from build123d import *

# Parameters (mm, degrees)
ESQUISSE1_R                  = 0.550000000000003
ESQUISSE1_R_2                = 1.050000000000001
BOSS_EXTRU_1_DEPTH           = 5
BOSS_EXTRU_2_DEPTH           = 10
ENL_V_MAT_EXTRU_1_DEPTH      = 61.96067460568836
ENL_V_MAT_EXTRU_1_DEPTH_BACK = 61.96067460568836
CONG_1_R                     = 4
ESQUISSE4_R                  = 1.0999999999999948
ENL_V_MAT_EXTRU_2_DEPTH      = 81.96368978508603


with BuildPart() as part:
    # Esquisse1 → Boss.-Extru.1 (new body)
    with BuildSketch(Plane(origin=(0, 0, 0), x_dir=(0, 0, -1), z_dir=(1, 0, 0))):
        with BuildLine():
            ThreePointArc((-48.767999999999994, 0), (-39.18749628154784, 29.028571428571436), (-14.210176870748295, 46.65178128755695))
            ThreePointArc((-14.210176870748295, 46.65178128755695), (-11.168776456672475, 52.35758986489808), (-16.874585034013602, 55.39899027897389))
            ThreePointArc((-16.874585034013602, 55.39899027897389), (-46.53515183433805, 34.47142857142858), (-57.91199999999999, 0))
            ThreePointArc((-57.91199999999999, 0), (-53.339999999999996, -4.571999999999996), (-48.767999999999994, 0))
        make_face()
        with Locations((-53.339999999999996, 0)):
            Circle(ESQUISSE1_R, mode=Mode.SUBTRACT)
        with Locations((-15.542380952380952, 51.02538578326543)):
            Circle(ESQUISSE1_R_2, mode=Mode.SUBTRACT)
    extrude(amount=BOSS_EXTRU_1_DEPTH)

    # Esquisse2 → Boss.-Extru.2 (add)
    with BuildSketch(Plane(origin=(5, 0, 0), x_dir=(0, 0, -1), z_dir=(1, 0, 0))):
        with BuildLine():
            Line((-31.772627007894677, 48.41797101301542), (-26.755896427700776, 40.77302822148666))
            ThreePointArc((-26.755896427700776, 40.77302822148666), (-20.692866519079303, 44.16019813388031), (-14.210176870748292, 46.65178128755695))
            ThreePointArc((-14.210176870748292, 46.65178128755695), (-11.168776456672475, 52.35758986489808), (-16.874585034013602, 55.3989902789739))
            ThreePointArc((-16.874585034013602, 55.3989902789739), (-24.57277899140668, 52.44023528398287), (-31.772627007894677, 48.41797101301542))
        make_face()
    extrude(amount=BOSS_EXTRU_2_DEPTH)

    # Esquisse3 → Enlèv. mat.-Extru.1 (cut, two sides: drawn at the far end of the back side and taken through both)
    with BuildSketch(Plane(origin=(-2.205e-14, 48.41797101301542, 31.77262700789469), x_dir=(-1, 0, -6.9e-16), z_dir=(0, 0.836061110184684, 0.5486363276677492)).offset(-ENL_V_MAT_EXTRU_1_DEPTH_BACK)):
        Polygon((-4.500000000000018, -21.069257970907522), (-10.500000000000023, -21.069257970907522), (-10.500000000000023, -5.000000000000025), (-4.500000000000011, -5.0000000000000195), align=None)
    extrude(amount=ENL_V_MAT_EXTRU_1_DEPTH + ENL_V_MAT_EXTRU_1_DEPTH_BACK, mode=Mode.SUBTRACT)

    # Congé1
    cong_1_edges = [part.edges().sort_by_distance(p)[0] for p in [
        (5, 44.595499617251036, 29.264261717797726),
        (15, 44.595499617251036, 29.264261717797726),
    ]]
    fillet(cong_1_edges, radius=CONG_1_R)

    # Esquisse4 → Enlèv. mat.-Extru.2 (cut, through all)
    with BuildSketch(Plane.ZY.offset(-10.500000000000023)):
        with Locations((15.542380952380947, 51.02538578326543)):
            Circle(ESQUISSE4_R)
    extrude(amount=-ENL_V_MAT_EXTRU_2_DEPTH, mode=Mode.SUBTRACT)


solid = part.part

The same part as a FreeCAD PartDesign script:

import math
import FreeCAD as App
import Part
import Sketcher
from FreeCAD import Vector
Q = App.Units.Quantity


def edges_at(feature, points):
    """Names of the edges that pass closest to the given points."""
    edges = feature.Shape.Edges
    near = lambda p: min(range(len(edges)), key=lambda i: edges[i].distToShape(Part.Vertex(*p))[0])
    return sorted({f"Edge{near(p) + 1}" for p in points})

doc = App.newDocument("Part")
params = doc.addObject("Spreadsheet::Sheet", "Params")
for row, (alias, value) in enumerate([
    ("sketch1_diameter", "1.1 mm"),
    ("sketch1_diameter2", "2.1 mm"),
    ("pad1_length", "5 mm"),
    ("pad2_length", "10 mm"),
    ("sketch3_width", "6 mm"),
    ("fillet_radius", "4 mm"),
    ("sketch4_diameter", "2.2 mm"),
], start=1):
    params.set(f"A{row}", alias)
    params.set(f"B{row}", "=" + value)
    params.setAlias(f"B{row}", alias)

body = doc.addObject("PartDesign::Body", "Body")

sketch1 = body.newObject("Sketcher::SketchObject", "Sketch")
sketch1.AttachmentSupport = (doc.getObject("YZ_Plane"), [""])
sketch1.MapMode = "FlatFace"
sketch1.addGeometry(Part.ArcOfCircle(Part.Circle(Vector(0, 0, 0), Vector(0, 0, 1), 48.8), math.radians(17), math.radians(90)), False)
sketch1.addGeometry(Part.ArcOfCircle(Part.Circle(Vector(51, 15.5, 0), Vector(0, 0, 1), 4.6), math.radians(-163), math.radians(17)), False)
sketch1.addGeometry(Part.ArcOfCircle(Part.Circle(Vector(0, 0, 0), Vector(0, 0, 1), 57.9), math.radians(17), math.radians(90)), False)
sketch1.addGeometry(Part.ArcOfCircle(Part.Circle(Vector(0, 53.3, 0), Vector(0, 0, 1), 4.6), math.radians(90), math.radians(270)), False)
sketch1.addGeometry(Part.Circle(Vector(0, 53.3, 0), Vector(0, 0, 1), 0.6), False)
sketch1.addGeometry(Part.Circle(Vector(51, 15.5, 0), Vector(0, 0, 1), 1.1), False)
sketch1.addConstraint(Sketcher.Constraint("Tangent", 0, 1, 1, 1))
sketch1.addConstraint(Sketcher.Constraint("Tangent", 1, 2, 2, 1))
sketch1.addConstraint(Sketcher.Constraint("Tangent", 2, 2, 3, 1))
sketch1.addConstraint(Sketcher.Constraint("Tangent", 3, 2, 0, 2))
sketch1.addConstraint(Sketcher.Constraint("Coincident", 0, 3, -1, 1))
sketch1.addConstraint(Sketcher.Constraint("Coincident", 2, 3, -1, 1))
sketch1.addConstraint(Sketcher.Constraint("Coincident", 4, 3, 3, 3))
sketch1.addConstraint(Sketcher.Constraint("Coincident", 5, 3, 1, 3))
sketch1.addConstraint(Sketcher.Constraint("PointOnObject", 3, 3, -2))
sketch1.addConstraint(Sketcher.Constraint("Diameter", 4, Q("1.1 mm")))
sketch1.addConstraint(Sketcher.Constraint("Diameter", 5, Q("2.1 mm")))
sketch1.addConstraint(Sketcher.Constraint("Radius", 0, Q("48.768 mm")))
sketch1.addConstraint(Sketcher.Constraint("Radius", 1, Q("4.572 mm")))
sketch1.addConstraint(Sketcher.Constraint("DistanceY", -1, 1, 1, 3, Q("15.542381 mm")))
sketch1.setExpression("Constraints[9]", "Params.sketch1_diameter")
sketch1.setExpression("Constraints[10]", "Params.sketch1_diameter2")
pad1 = body.newObject("PartDesign::Pad", "Pad")
pad1.Profile = sketch1
pad1.setExpression("Length", "Params.pad1_length")

sketch2 = body.newObject("Sketcher::SketchObject", "Sketch001")
sketch2.AttachmentSupport = (doc.getObject("YZ_Plane"), [""])
sketch2.MapMode = "FlatFace"
sketch2.AttachmentOffset = App.Placement(Vector(0, 0, 5), App.Rotation())
sketch2.addGeometry(Part.LineSegment(Vector(48.4, 31.8, 0), Vector(40.8, 26.8, 0)), False)
sketch2.addGeometry(Part.ArcOfCircle(Part.Circle(Vector(0, 0, 0), Vector(0, 0, 1), 48.8), math.radians(16.94), math.radians(33.27)), False)
sketch2.addGeometry(Part.ArcOfCircle(Part.Circle(Vector(51, 15.5, 0), Vector(0, 0, 1), 4.6), math.radians(-163), math.radians(17)), False)
sketch2.addGeometry(Part.ArcOfCircle(Part.Circle(Vector(0, 0, 0), Vector(0, 0, 1), 57.9), math.radians(16.94), math.radians(33.27)), False)
sketch2.addConstraint(Sketcher.Constraint("Coincident", 0, 2, 1, 2))
sketch2.addConstraint(Sketcher.Constraint("Tangent", 1, 1, 2, 1))
sketch2.addConstraint(Sketcher.Constraint("Tangent", 2, 2, 3, 1))
sketch2.addConstraint(Sketcher.Constraint("Coincident", 3, 2, 0, 1))
sketch2.addConstraint(Sketcher.Constraint("Coincident", 1, 3, -1, 1))
sketch2.addConstraint(Sketcher.Constraint("Coincident", 3, 3, -1, 1))
sketch2.addConstraint(Sketcher.Constraint("Radius", 1, Q("48.768 mm")))
sketch2.addConstraint(Sketcher.Constraint("Radius", 2, Q("4.572 mm")))
sketch2.addConstraint(Sketcher.Constraint("DistanceY", -1, 1, 2, 3, Q("15.542381 mm")))
sketch2.addConstraint(Sketcher.Constraint("DistanceX", -1, 1, 0, 2, Q("40.773028 mm")))
sketch2.addConstraint(Sketcher.Constraint("DistanceX", -1, 1, 3, 2, Q("48.417971 mm")))
pad2 = body.newObject("PartDesign::Pad", "Pad001")
pad2.Profile = sketch2
pad2.setExpression("Length", "Params.pad2_length")

sketch3 = body.newObject("Sketcher::SketchObject", "Sketch002")
sketch3.Placement = App.Placement(Vector(0, 48.417971, 31.772627), App.Rotation(Vector(-1, 0, 0), Vector(0, -0.548636328, 0.83606111), Vector(0, 0.83606111, 0.548636328), "ZXY"))
sketch3.addGeometry(Part.LineSegment(Vector(-10, -21, 0), Vector(-4, -21, 0)), False)
sketch3.addGeometry(Part.LineSegment(Vector(-4, -21, 0), Vector(-4, -5, 0)), False)
sketch3.addGeometry(Part.LineSegment(Vector(-4, -5, 0), Vector(-10, -5, 0)), False)
sketch3.addGeometry(Part.LineSegment(Vector(-10, -5, 0), Vector(-10, -21, 0)), False)
sketch3.addConstraint(Sketcher.Constraint("Coincident", 0, 2, 1, 1))
sketch3.addConstraint(Sketcher.Constraint("Coincident", 1, 2, 2, 1))
sketch3.addConstraint(Sketcher.Constraint("Coincident", 2, 2, 3, 1))
sketch3.addConstraint(Sketcher.Constraint("Coincident", 3, 2, 0, 1))
sketch3.addConstraint(Sketcher.Constraint("Horizontal", 0))
sketch3.addConstraint(Sketcher.Constraint("Vertical", 1))
sketch3.addConstraint(Sketcher.Constraint("Horizontal", 2))
sketch3.addConstraint(Sketcher.Constraint("Vertical", 3))
sketch3.addConstraint(Sketcher.Constraint("DistanceX", 0, 1, 0, 2, Q("6 mm")))
sketch3.addConstraint(Sketcher.Constraint("DistanceY", 1, 2, -1, 1, Q("5 mm")))
sketch3.addConstraint(Sketcher.Constraint("DistanceX", 0, 2, -1, 1, Q("4.5 mm")))
sketch3.addConstraint(Sketcher.Constraint("DistanceY", 1, 1, 1, 2, Q("16.069258 mm")))
sketch3.setExpression("Constraints[8]", "Params.sketch3_width")
pocket1 = body.newObject("PartDesign::Pocket", "Pocket")
pocket1.Profile = sketch3
pocket1.Type = "ThroughAll"
pocket1.Midplane = True
doc.recompute()

fillet = body.newObject("PartDesign::Fillet", "Fillet")
fillet.Base = (pocket1, edges_at(pocket1, [(5, 44.595, 29.264), (15, 44.595, 29.264)]))
fillet.setExpression("Radius", "Params.fillet_radius")

sketch4 = body.newObject("Sketcher::SketchObject", "Sketch003")
sketch4.AttachmentSupport = (doc.getObject("YZ_Plane"), [""])
sketch4.MapMode = "FlatFace"
sketch4.AttachmentOffset = App.Placement(Vector(0, 0, 10.5), App.Rotation())
sketch4.addGeometry(Part.Circle(Vector(51, 15.5, 0), Vector(0, 0, 1), 1.1), False)
sketch4.addConstraint(Sketcher.Constraint("Diameter", 0, Q("2.2 mm")))
sketch4.addConstraint(Sketcher.Constraint("DistanceY", -1, 1, 0, 3, Q("15.542381 mm")))
sketch4.addConstraint(Sketcher.Constraint("DistanceX", -1, 1, 0, 3, Q("51.025386 mm")))
sketch4.setExpression("Constraints[0]", "Params.sketch4_diameter")
pocket2 = body.newObject("PartDesign::Pocket", "Pocket001")
pocket2.Profile = sketch4
pocket2.Type = "ThroughAll"
pocket2.Reversed = True

doc.recompute()
